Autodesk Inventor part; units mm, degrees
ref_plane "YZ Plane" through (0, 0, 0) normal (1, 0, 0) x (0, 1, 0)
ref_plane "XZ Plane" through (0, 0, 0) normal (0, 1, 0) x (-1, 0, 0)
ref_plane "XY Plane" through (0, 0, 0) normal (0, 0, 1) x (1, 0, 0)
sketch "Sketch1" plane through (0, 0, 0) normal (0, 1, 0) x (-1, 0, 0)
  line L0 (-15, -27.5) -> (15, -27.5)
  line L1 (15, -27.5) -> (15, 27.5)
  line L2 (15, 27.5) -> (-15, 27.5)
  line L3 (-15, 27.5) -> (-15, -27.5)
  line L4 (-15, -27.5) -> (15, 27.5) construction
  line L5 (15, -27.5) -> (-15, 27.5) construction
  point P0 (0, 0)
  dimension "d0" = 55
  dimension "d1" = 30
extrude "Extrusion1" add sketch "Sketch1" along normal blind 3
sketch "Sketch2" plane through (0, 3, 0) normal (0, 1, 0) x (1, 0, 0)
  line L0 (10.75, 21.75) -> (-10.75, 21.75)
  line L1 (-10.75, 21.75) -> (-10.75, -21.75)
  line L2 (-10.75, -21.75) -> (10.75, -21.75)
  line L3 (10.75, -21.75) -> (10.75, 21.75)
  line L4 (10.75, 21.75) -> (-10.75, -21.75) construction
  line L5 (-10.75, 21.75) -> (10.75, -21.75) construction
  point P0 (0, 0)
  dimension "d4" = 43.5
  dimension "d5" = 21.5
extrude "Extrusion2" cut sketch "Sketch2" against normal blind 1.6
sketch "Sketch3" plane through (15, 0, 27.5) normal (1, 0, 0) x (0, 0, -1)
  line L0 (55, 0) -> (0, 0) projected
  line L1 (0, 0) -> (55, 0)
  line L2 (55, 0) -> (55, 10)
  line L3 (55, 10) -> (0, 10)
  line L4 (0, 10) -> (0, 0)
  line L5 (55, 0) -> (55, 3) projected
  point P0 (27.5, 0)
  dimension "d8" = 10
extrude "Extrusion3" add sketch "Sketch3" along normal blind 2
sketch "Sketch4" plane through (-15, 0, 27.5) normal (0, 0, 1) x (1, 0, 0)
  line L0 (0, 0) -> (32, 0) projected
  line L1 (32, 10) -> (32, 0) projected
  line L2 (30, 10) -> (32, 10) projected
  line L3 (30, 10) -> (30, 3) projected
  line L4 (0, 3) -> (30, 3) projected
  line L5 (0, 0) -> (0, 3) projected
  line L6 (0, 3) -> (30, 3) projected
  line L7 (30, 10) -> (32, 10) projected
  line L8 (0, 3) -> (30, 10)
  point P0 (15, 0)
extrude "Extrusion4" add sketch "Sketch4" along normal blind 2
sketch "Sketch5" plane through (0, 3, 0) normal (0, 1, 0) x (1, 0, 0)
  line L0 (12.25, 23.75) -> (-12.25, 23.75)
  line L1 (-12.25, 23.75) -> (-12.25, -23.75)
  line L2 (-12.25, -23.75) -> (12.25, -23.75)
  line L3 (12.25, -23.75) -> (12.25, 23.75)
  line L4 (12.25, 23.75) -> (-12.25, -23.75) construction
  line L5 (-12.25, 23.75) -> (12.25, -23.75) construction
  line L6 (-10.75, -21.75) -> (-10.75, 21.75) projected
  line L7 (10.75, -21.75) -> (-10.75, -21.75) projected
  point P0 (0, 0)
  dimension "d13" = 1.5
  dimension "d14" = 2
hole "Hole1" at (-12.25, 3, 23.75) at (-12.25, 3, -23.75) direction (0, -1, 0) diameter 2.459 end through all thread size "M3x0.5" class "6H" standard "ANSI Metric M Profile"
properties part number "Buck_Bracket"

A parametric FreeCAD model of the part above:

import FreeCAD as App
import Part
import Sketcher
from FreeCAD import Vector


def add_polygon(sketch, points):
    """Adds a closed chain of lines whose ends are joined by coincident constraints."""
    first, n = sketch.GeometryCount, len(points)
    for a, b in zip(points, points[1:] + points[:1]):
        sketch.addGeometry(Part.LineSegment(App.Vector(*a, 0), App.Vector(*b, 0)), False)
    for i in range(n):
        sketch.addConstraint(Sketcher.Constraint("Coincident", first + i, 2, first + (i + 1) % n, 1))

doc = App.newDocument("Part")
params = doc.addObject("Spreadsheet::Sheet", "Params")
for row, (alias, value) in enumerate([
    ("sketch1_width", "30 mm"),
    ("sketch1_height", "55 mm"),
    ("pad1_length", "3 mm"),
    ("sketch2_width", "21.5 mm"),
    ("sketch2_height", "43.5 mm"),
    ("pocket1_length", "1.6 mm"),
    ("sketch3_width", "10 mm"),
    ("sketch3_height", "55 mm"),
    ("pad2_length", "2 mm"),
    ("sketch4_width", "32 mm"),
    ("sketch4_width2", "2 mm"),
    ("sketch4_height", "3 mm"),
    ("sketch4_height2", "10 mm"),
    ("pad3_length", "2 mm"),
    ("hole_diameter", "2.459 mm"),
], start=1):
    params.set(f"A{row}", alias)
    params.set(f"B{row}", "=" + value)
    params.setAlias(f"B{row}", alias)

body = doc.addObject("PartDesign::Body", "Body")

# Sketch on XZ plane
sketch1 = body.newObject("Sketcher::SketchObject", "Sketch")
sketch1.AttachmentSupport = (doc.getObject("XZ_Plane"), [""])
sketch1.MapMode = "FlatFace"
add_polygon(sketch1, [(15, 27.5), (15, -27.5), (-15, -27.5), (-15, 27.5)])  # lines 0-3
sketch1.addConstraint([
    Sketcher.Constraint("Vertical", 0),
    Sketcher.Constraint("Horizontal", 1),
    Sketcher.Constraint("Vertical", 2),
    Sketcher.Constraint("Horizontal", 3),
    Sketcher.Constraint("Symmetric", 0, 2, 2, 2, -1, 1),
    Sketcher.Constraint("DistanceX", 1, 2, 1, 1, 30.0),
    Sketcher.Constraint("DistanceY", 0, 2, 0, 1, 55.0),
])
sketch1.setExpression("Constraints[9]", "Params.sketch1_width")
sketch1.setExpression("Constraints[10]", "Params.sketch1_height")
pad1 = body.newObject("PartDesign::Pad", "Pad")
pad1.Profile = sketch1
pad1.setExpression("Length", "Params.pad1_length")
pad1.Reversed = True

# Sketch on XZ plane
sketch2 = body.newObject("Sketcher::SketchObject", "Sketch001")
sketch2.AttachmentSupport = (doc.getObject("XZ_Plane"), [""])
sketch2.MapMode = "FlatFace"
sketch2.AttachmentOffset = App.Placement(Vector(0, 0, -3), App.Rotation())
add_polygon(sketch2, [(10.75, 21.75), (10.75, -21.75), (-10.75, -21.75), (-10.75, 21.75)])  # lines 0-3
sketch2.addConstraint([
    Sketcher.Constraint("Vertical", 0),
    Sketcher.Constraint("Horizontal", 1),
    Sketcher.Constraint("Vertical", 2),
    Sketcher.Constraint("Horizontal", 3),
    Sketcher.Constraint("Symmetric", 0, 2, 2, 2, -1, 1),
    Sketcher.Constraint("DistanceX", 1, 2, 1, 1, 21.5),
    Sketcher.Constraint("DistanceY", 0, 2, 0, 1, 43.5),
])
sketch2.setExpression("Constraints[9]", "Params.sketch2_width")
sketch2.setExpression("Constraints[10]", "Params.sketch2_height")
pocket1 = body.newObject("PartDesign::Pocket", "Pocket")
pocket1.Profile = sketch2
pocket1.setExpression("Length", "Params.pocket1_length")
pocket1.Reversed = True

# Sketch on YZ plane
sketch3 = body.newObject("Sketcher::SketchObject", "Sketch002")
sketch3.AttachmentSupport = (doc.getObject("YZ_Plane"), [""])
sketch3.MapMode = "FlatFace"
sketch3.AttachmentOffset = App.Placement(Vector(0, 0, 15), App.Rotation())
add_polygon(sketch3, [(0, 27.5), (0, -27.5), (10, -27.5), (10, 27.5)])  # lines 0-3
sketch3.addConstraint([
    Sketcher.Constraint("Vertical", 0),
    Sketcher.Constraint("Horizontal", 1),
    Sketcher.Constraint("Vertical", 2),
    Sketcher.Constraint("Horizontal", 3),
    Sketcher.Constraint("Symmetric", 0, 2, 3, 2, -1, 1),
    Sketcher.Constraint("DistanceX", 1, 1, 1, 2, 10.0),
    Sketcher.Constraint("DistanceY", 0, 2, 0, 1, 55.0),
])
sketch3.setExpression("Constraints[9]", "Params.sketch3_width")
sketch3.setExpression("Constraints[10]", "Params.sketch3_height")
pad2 = body.newObject("PartDesign::Pad", "Pad001")
pad2.Profile = sketch3
pad2.setExpression("Length", "Params.pad2_length")

# Sketch on XY plane
sketch4 = body.newObject("Sketcher::SketchObject", "Sketch003")
sketch4.AttachmentSupport = (doc.getObject("XY_Plane"), [""])
sketch4.MapMode = "FlatFace"
sketch4.AttachmentOffset = App.Placement(Vector(0, 0, 27.5), App.Rotation())
add_polygon(sketch4, [(-15, 3), (-15, 0), (17, 0), (17, 10), (15, 10)])  # lines 0-4
sketch4.addConstraint([
    Sketcher.Constraint("Vertical", 0),
    Sketcher.Constraint("Horizontal", 1),
    Sketcher.Constraint("Vertical", 2),
    Sketcher.Constraint("Horizontal", 3),
    Sketcher.Constraint("PointOnObject", 0, 2, -1),
    Sketcher.Constraint("DistanceX", 1, 1, 1, 2, 32.0),
    Sketcher.Constraint("DistanceX", 3, 2, 3, 1, 2.0),
    Sketcher.Constraint("DistanceY", 0, 2, 0, 1, 3.0),
    Sketcher.Constraint("DistanceY", 2, 1, 2, 2, 10.0),
    Sketcher.Constraint("DistanceX", 0, 2, -1, 1, 15.0),
])
sketch4.setExpression("Constraints[10]", "Params.sketch4_width")
sketch4.setExpression("Constraints[11]", "Params.sketch4_width2")
sketch4.setExpression("Constraints[12]", "Params.sketch4_height")
sketch4.setExpression("Constraints[13]", "Params.sketch4_height2")
pad3 = body.newObject("PartDesign::Pad", "Pad002")
pad3.Profile = sketch4
pad3.setExpression("Length", "Params.pad3_length")

# Sketch on XZ plane
sketch5 = body.newObject("Sketcher::SketchObject", "Sketch004")
sketch5.AttachmentSupport = (doc.getObject("XZ_Plane"), [""])
sketch5.MapMode = "FlatFace"
sketch5.AttachmentOffset = App.Placement(Vector(0, 0, -3), App.Rotation())
sketch5.addGeometry([
    Part.Circle(Vector(-12.25, 23.75, 0), Vector(0, 0, 1), 1.2295),
    Part.Circle(Vector(-12.25, -23.75, 0), Vector(0, 0, 1), 1.2295),
], False)
sketch5.addConstraint([
    Sketcher.Constraint("Equal", 0, 1),
    Sketcher.Constraint("Symmetric", 0, 3, 1, 3, -1),
    Sketcher.Constraint("Diameter", 0, 2.459),
    Sketcher.Constraint("DistanceY", 1, 3, 0, 3, 47.5),
    Sketcher.Constraint("DistanceX", 0, 3, -1, 1, 12.25),
])
doc.recompute()
hole = body.newObject("PartDesign::Hole", "Hole")
hole.Profile = sketch5
hole.ThreadType = "None"
hole.setExpression("Diameter", "Params.hole_diameter")
hole.DepthType = "ThroughAll"
hole.Reversed = True

doc.recompute()
